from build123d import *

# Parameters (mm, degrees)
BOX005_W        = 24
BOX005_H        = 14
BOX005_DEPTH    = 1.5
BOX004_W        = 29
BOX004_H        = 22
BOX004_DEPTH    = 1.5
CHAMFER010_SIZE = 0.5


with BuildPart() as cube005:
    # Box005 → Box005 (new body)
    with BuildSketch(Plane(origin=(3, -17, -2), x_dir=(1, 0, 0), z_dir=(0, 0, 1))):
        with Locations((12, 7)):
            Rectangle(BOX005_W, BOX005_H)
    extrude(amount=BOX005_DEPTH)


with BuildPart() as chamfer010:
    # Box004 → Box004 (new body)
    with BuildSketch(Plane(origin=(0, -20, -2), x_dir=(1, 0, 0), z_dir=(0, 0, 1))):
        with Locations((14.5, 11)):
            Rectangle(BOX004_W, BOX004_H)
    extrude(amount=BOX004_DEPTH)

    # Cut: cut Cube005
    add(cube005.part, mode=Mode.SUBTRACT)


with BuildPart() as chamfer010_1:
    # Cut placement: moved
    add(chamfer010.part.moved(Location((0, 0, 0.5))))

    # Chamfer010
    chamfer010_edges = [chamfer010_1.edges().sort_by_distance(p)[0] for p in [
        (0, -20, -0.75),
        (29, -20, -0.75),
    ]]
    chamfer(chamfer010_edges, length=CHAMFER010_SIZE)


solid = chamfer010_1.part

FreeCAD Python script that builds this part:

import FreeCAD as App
import Part
import Sketcher


def edges_at(feature, points):
    """Names of the edges that pass closest to the given points."""
    edges = feature.Shape.Edges
    near = lambda p: min(range(len(edges)), key=lambda i: edges[i].distToShape(Part.Vertex(*p))[0])
    return sorted({f"Edge{near(p) + 1}" for p in points})

doc = App.newDocument("Part")
body = doc.addObject("PartDesign::Body", "Body")

# Sketch on XY plane
sketch1 = body.newObject("Sketcher::SketchObject", "Sketch")
sketch1.AttachmentSupport = (doc.getObject("XY_Plane"), [""])
sketch1.MapMode = "FlatFace"
sketch1.AttachmentOffset = App.Placement(App.Vector(0, 0, -2), App.Rotation())
sketch1.addGeometry(Part.LineSegment(App.Vector(3, -3, 0), App.Vector(3, -17, 0)), False)
sketch1.addGeometry(Part.LineSegment(App.Vector(3, -17, 0), App.Vector(27, -17, 0)), False)
sketch1.addGeometry(Part.LineSegment(App.Vector(27, -17, 0), App.Vector(27, -3, 0)), False)
sketch1.addGeometry(Part.LineSegment(App.Vector(27, -3, 0), App.Vector(3, -3, 0)), False)
sketch1.addConstraint(Sketcher.Constraint("Coincident", 0, 2, 1, 1))
sketch1.addConstraint(Sketcher.Constraint("Coincident", 1, 2, 2, 1))
sketch1.addConstraint(Sketcher.Constraint("Coincident", 2, 2, 3, 1))
sketch1.addConstraint(Sketcher.Constraint("Coincident", 3, 2, 0, 1))
sketch1.addConstraint(Sketcher.Constraint("Vertical", 0))
sketch1.addConstraint(Sketcher.Constraint("Horizontal", 1))
sketch1.addConstraint(Sketcher.Constraint("Vertical", 2))
sketch1.addConstraint(Sketcher.Constraint("Horizontal", 3))
sketch1.addConstraint(Sketcher.Constraint("DistanceX", 1, 1, 1, 2, 24.0))
sketch1.addConstraint(Sketcher.Constraint("DistanceY", 0, 2, 0, 1, 14.0))
sketch1.addConstraint(Sketcher.Constraint("DistanceX", -1, 1, 0, 2, 3.0))
sketch1.addConstraint(Sketcher.Constraint("DistanceY", 0, 2, -1, 1, 17.0))
pad1 = body.newObject("PartDesign::Pad", "Pad")
pad1.Profile = sketch1
pad1.Length = 1.5
body2 = doc.addObject("PartDesign::Body", "Body001")

# Sketch on XY plane
sketch2 = body2.newObject("Sketcher::SketchObject", "Sketch001")
sketch2.AttachmentSupport = (doc.getObject("XY_Plane001"), [""])
sketch2.MapMode = "FlatFace"
sketch2.AttachmentOffset = App.Placement(App.Vector(0, 0, -2), App.Rotation())
sketch2.addGeometry(Part.LineSegment(App.Vector(0, 2, 0), App.Vector(0, -20, 0)), False)
sketch2.addGeometry(Part.LineSegment(App.Vector(0, -20, 0), App.Vector(29, -20, 0)), False)
sketch2.addGeometry(Part.LineSegment(App.Vector(29, -20, 0), App.Vector(29, 2, 0)), False)
sketch2.addGeometry(Part.LineSegment(App.Vector(29, 2, 0), App.Vector(0, 2, 0)), False)
sketch2.addConstraint(Sketcher.Constraint("Coincident", 0, 2, 1, 1))
sketch2.addConstraint(Sketcher.Constraint("Coincident", 1, 2, 2, 1))
sketch2.addConstraint(Sketcher.Constraint("Coincident", 2, 2, 3, 1))
sketch2.addConstraint(Sketcher.Constraint("Coincident", 3, 2, 0, 1))
sketch2.addConstraint(Sketcher.Constraint("Vertical", 0))
sketch2.addConstraint(Sketcher.Constraint("Horizontal", 1))
sketch2.addConstraint(Sketcher.Constraint("Vertical", 2))
sketch2.addConstraint(Sketcher.Constraint("Horizontal", 3))
sketch2.addConstraint(Sketcher.Constraint("PointOnObject", 0, 2, -2))
sketch2.addConstraint(Sketcher.Constraint("DistanceX", 1, 1, 1, 2, 29.0))
sketch2.addConstraint(Sketcher.Constraint("DistanceY", 0, 2, 0, 1, 22.0))
sketch2.addConstraint(Sketcher.Constraint("DistanceY", 0, 2, -1, 1, 20.0))
pad2 = body2.newObject("PartDesign::Pad", "Pad001")
pad2.Profile = sketch2
pad2.Length = 1.5
doc.recompute()

boolean = body2.newObject("PartDesign::Boolean", "Boolean")
boolean.Type = "Cut"
boolean.addObjects([body])
body3 = doc.addObject("PartDesign::Body", "Body002")
doc.recompute()

body2.Placement = App.Placement(App.Vector(0, 0, 0.5), App.Rotation(App.Vector(0, 0, 1), 0))
boolean2 = body3.newObject("PartDesign::Boolean", "Boolean001")
boolean2.Type = "Fuse"
boolean2.addObjects([body2])
doc.recompute()

chamfer = body3.newObject("PartDesign::Chamfer", "Chamfer")
chamfer.Base = (boolean2, edges_at(boolean2, [(0, -20, -0.75), (29, -20, -0.75)]))
chamfer.Size = 0.5

doc.recompute()
